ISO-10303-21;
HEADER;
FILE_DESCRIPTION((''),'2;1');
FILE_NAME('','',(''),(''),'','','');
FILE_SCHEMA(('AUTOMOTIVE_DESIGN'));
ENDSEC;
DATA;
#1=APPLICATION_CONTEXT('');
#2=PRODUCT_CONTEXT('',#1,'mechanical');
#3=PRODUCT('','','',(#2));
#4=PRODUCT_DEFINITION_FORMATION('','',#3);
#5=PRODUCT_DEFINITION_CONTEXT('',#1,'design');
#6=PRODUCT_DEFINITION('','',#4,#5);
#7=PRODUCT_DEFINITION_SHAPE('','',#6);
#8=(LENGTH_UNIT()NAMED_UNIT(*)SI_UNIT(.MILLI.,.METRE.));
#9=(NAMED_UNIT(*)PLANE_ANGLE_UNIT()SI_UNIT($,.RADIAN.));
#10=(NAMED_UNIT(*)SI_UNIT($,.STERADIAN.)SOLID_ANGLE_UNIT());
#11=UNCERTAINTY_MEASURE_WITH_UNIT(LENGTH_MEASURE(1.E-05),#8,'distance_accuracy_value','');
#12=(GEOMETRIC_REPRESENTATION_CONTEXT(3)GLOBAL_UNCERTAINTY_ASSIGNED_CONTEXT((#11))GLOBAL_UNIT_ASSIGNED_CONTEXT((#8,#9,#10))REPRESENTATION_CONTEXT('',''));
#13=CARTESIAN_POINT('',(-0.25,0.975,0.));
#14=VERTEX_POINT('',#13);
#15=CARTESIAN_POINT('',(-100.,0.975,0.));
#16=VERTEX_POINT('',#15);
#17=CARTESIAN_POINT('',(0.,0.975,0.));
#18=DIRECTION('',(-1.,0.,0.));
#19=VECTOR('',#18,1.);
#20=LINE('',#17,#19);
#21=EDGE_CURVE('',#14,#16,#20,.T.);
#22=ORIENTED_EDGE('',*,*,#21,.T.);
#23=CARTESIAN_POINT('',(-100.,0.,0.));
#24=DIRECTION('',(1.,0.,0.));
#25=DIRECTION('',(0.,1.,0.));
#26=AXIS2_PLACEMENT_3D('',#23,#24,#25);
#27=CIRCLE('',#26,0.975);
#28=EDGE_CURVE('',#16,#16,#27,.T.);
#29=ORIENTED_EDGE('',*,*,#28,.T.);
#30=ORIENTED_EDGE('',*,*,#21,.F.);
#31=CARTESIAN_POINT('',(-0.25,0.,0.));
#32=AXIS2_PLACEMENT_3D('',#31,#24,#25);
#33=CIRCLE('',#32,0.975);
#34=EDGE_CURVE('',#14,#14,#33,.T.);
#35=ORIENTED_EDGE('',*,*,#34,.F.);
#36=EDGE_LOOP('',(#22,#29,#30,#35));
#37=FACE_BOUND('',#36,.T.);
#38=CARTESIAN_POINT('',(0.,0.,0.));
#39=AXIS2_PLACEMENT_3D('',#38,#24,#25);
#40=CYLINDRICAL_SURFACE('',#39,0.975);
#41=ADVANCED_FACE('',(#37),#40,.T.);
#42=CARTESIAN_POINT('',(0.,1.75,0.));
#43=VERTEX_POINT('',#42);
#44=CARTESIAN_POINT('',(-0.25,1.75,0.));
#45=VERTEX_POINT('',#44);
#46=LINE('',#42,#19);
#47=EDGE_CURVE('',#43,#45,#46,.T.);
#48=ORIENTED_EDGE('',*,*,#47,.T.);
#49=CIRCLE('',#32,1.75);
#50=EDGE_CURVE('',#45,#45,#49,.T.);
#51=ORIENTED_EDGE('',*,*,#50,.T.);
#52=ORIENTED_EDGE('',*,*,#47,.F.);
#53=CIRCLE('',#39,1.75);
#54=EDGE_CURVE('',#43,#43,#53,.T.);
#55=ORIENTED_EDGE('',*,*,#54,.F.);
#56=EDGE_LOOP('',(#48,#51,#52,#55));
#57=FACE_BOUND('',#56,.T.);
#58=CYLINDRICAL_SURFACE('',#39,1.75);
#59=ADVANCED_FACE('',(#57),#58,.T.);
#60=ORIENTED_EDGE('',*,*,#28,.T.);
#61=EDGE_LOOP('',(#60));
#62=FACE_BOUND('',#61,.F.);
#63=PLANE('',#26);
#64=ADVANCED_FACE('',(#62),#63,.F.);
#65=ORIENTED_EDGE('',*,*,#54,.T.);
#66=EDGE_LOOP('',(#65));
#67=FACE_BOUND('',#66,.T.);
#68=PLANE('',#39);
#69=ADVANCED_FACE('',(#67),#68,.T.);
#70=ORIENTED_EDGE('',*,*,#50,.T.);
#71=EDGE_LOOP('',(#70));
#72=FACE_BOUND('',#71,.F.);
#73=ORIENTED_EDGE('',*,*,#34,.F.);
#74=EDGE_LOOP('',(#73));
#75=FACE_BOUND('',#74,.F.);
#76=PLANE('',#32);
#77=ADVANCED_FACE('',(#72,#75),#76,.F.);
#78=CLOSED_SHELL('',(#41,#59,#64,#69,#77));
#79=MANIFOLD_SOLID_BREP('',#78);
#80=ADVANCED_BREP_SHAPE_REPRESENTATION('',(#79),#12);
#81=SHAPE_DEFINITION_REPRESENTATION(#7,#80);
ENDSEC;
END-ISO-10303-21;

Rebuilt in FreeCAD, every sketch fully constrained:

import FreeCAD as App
import Part
import Sketcher

V = App.Vector
Q = App.Units.Quantity

doc = App.newDocument("Part")
body = doc.addObject("PartDesign::Body", "Body")

# Sketch on YZ plane
sketch1 = doc.addObject("Sketcher::SketchObject", "Sketch")
body.addObject(sketch1)
sketch1.AttachmentSupport = (doc.YZ_Plane, [""])
sketch1.MapMode = "FlatFace"
sketch1.addGeometry(Part.Circle(V(0, 0, 0), V(0, 0, 1), 1), False)
sketch1.addConstraint([
    Sketcher.Constraint("Coincident", 0, 3, -1, 1),
    Sketcher.Constraint("Diameter", 0, Q("1.95 mm")),
])
pad1 = doc.addObject("PartDesign::Pad", "Pad")
body.addObject(pad1)
pad1.Profile = sketch1
pad1.Length = 100
pad1.Reversed = True

# Sketch on YZ plane
sketch2 = doc.addObject("Sketcher::SketchObject", "Sketch001")
body.addObject(sketch2)
sketch2.AttachmentSupport = (doc.YZ_Plane, [""])
sketch2.MapMode = "FlatFace"
sketch2.addGeometry(Part.Circle(V(0, 0, 0), V(0, 0, 1), 1.8), False)
sketch2.addConstraint([
    Sketcher.Constraint("Coincident", 0, 3, -1, 1),
    Sketcher.Constraint("Diameter", 0, Q("3.5 mm")),
])
pad2 = doc.addObject("PartDesign::Pad", "Pad001")
body.addObject(pad2)
pad2.Profile = sketch2
pad2.Length = 0.25
pad2.Reversed = True

doc.recompute()
